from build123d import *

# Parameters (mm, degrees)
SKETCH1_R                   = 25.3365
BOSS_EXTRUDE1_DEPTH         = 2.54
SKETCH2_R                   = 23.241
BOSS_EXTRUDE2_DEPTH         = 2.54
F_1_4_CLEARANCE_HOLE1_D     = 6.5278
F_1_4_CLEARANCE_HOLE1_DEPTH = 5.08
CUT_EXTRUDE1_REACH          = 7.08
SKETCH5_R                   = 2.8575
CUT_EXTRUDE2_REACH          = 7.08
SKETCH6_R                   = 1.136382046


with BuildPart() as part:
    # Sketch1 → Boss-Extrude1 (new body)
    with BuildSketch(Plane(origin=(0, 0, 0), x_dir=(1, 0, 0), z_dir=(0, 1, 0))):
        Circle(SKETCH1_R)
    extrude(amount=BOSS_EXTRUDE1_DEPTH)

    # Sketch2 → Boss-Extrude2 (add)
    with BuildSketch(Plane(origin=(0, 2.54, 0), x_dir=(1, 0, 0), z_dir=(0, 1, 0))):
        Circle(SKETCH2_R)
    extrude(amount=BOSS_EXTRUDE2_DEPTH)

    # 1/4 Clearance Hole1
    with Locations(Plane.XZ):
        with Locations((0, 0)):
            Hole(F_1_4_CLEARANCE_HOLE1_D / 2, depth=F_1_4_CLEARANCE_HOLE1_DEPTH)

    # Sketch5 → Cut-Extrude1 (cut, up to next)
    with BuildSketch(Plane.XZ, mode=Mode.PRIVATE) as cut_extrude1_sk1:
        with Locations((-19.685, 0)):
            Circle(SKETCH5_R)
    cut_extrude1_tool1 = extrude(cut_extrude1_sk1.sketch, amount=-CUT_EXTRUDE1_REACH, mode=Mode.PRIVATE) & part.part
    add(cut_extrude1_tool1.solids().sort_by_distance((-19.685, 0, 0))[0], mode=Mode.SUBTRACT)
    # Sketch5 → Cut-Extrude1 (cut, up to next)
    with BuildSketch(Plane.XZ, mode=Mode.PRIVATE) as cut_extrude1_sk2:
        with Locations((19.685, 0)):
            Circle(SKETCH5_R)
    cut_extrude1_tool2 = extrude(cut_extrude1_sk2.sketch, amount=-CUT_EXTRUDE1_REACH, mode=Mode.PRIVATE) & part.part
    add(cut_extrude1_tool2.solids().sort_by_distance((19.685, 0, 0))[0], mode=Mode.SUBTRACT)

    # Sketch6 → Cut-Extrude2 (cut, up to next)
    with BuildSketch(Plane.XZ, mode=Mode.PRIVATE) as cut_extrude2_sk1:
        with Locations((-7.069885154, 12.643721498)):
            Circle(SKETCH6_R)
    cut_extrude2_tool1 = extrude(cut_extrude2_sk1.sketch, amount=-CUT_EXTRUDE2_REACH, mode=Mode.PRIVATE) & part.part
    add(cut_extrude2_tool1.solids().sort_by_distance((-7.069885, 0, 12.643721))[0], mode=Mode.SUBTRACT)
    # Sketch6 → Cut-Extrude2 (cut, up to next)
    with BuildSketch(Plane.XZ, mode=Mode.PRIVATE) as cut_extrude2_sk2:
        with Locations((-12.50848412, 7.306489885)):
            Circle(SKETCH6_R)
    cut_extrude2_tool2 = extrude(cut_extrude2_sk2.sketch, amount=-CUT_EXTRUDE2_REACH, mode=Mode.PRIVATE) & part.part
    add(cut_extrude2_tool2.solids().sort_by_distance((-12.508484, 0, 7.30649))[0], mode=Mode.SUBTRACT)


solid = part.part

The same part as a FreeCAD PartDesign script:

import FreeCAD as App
import Part
import Sketcher
Q = App.Units.Quantity

doc = App.newDocument("Part")
body = doc.addObject("PartDesign::Body", "Body")

sketch1 = body.newObject("Sketcher::SketchObject", "Sketch")
sketch1.AttachmentSupport = (doc.getObject("XZ_Plane"), [""])
sketch1.MapMode = "FlatFace"
sketch1.addGeometry(Part.Circle(App.Vector(0, 0, 0), App.Vector(0, 0, 1), 25.3365), False)
sketch1.addConstraint([
    Sketcher.Constraint("Coincident", 0, 3, -1, 1),
    Sketcher.Constraint("Diameter", 0, Q("1.995 in")),
])
pad1 = body.newObject("PartDesign::Pad", "Pad")
pad1.Profile = sketch1
pad1.Length = Q("0.1 in")
pad1.Reversed = True

sketch2 = body.newObject("Sketcher::SketchObject", "Sketch001")
sketch2.AttachmentSupport = (doc.getObject("XZ_Plane"), [""])
sketch2.MapMode = "FlatFace"
sketch2.AttachmentOffset = App.Placement(App.Vector(0, 0, -0.1 * 25.4), App.Rotation())
sketch2.addGeometry(Part.Circle(App.Vector(0, 0, 0), App.Vector(0, 0, 1), 23.241), False)
sketch2.addConstraint([
    Sketcher.Constraint("Coincident", 0, 3, -1, 1),
    Sketcher.Constraint("Diameter", 0, Q("1.83 in")),
])
pad2 = body.newObject("PartDesign::Pad", "Pad001")
pad2.Profile = sketch2
pad2.Length = Q("0.1 in")
pad2.Reversed = True

sketch3 = body.newObject("Sketcher::SketchObject", "Sketch002")
sketch3.AttachmentSupport = (doc.getObject("XZ_Plane"), [""])
sketch3.MapMode = "FlatFace"
sketch3.addGeometry(Part.Circle(App.Vector(0, 0, 0), App.Vector(0, 0, 1), 3.2639), False)
sketch3.addConstraint([
    Sketcher.Constraint("Coincident", 0, 3, -1, 1),
    Sketcher.Constraint("Diameter", 0, Q("0.257 in")),
])
doc.recompute()
hole = body.newObject("PartDesign::Hole", "Hole")
hole.Profile = sketch3
hole.ThreadType = "None"
hole.Diameter = Q("0.257 in")
hole.DepthType = "Dimension"
hole.Depth = Q("0.2 in")
hole.DrillPoint = "Flat"

sketch4 = body.newObject("Sketcher::SketchObject", "Sketch003")
sketch4.AttachmentSupport = (doc.getObject("XZ_Plane"), [""])
sketch4.MapMode = "FlatFace"
sketch4.addGeometry(Part.Circle(App.Vector(-19.685, 0, 0), App.Vector(0, 0, 1), 2.8575), False)
sketch4.addConstraint([
    Sketcher.Constraint("PointOnObject", 0, 3, -1),
    Sketcher.Constraint("Diameter", 0, Q("0.225 in")),
    Sketcher.Constraint("DistanceX", 0, 3, -1, 1, Q("0.775 in")),
])
pocket1 = body.newObject("PartDesign::Pocket", "Pocket")
pocket1.Profile = sketch4
pocket1.Type = "UpToFirst"

sketch5 = body.newObject("Sketcher::SketchObject", "Sketch004")
sketch5.AttachmentSupport = (doc.getObject("XZ_Plane"), [""])
sketch5.MapMode = "FlatFace"
sketch5.addGeometry(Part.Circle(App.Vector(19.685, 0, 0), App.Vector(0, 0, 1), 2.8575), False)
sketch5.addConstraint([
    Sketcher.Constraint("PointOnObject", 0, 3, -1),
    Sketcher.Constraint("Diameter", 0, Q("0.225 in")),
    Sketcher.Constraint("DistanceX", -1, 1, 0, 3, Q("0.775 in")),
])
pocket2 = body.newObject("PartDesign::Pocket", "Pocket001")
pocket2.Profile = sketch5
pocket2.Type = "UpToFirst"

sketch6 = body.newObject("Sketcher::SketchObject", "Sketch005")
sketch6.AttachmentSupport = (doc.getObject("XZ_Plane"), [""])
sketch6.MapMode = "FlatFace"
sketch6.addGeometry(Part.Circle(App.Vector(-7.069885, 12.643721, 0), App.Vector(0, 0, 1), 1.136382), False)
sketch6.addConstraint([
    Sketcher.Constraint("Diameter", 0, Q("2.272764 mm")),
    Sketcher.Constraint("DistanceY", -1, 1, 0, 3, Q("12.643721 mm")),
    Sketcher.Constraint("DistanceX", 0, 3, -1, 1, Q("7.069885 mm")),
])
pocket3 = body.newObject("PartDesign::Pocket", "Pocket002")
pocket3.Profile = sketch6
pocket3.Type = "UpToFirst"

sketch7 = body.newObject("Sketcher::SketchObject", "Sketch006")
sketch7.AttachmentSupport = (doc.getObject("XZ_Plane"), [""])
sketch7.MapMode = "FlatFace"
sketch7.addGeometry(Part.Circle(App.Vector(-12.508484, 7.30649, 0), App.Vector(0, 0, 1), 1.136382), False)
sketch7.addConstraint([
    Sketcher.Constraint("Diameter", 0, Q("2.272764 mm")),
    Sketcher.Constraint("DistanceY", -1, 1, 0, 3, Q("7.30649 mm")),
    Sketcher.Constraint("DistanceX", 0, 3, -1, 1, Q("12.508484 mm")),
])
pocket4 = body.newObject("PartDesign::Pocket", "Pocket003")
pocket4.Profile = sketch7
pocket4.Type = "UpToFirst"

doc.recompute()
